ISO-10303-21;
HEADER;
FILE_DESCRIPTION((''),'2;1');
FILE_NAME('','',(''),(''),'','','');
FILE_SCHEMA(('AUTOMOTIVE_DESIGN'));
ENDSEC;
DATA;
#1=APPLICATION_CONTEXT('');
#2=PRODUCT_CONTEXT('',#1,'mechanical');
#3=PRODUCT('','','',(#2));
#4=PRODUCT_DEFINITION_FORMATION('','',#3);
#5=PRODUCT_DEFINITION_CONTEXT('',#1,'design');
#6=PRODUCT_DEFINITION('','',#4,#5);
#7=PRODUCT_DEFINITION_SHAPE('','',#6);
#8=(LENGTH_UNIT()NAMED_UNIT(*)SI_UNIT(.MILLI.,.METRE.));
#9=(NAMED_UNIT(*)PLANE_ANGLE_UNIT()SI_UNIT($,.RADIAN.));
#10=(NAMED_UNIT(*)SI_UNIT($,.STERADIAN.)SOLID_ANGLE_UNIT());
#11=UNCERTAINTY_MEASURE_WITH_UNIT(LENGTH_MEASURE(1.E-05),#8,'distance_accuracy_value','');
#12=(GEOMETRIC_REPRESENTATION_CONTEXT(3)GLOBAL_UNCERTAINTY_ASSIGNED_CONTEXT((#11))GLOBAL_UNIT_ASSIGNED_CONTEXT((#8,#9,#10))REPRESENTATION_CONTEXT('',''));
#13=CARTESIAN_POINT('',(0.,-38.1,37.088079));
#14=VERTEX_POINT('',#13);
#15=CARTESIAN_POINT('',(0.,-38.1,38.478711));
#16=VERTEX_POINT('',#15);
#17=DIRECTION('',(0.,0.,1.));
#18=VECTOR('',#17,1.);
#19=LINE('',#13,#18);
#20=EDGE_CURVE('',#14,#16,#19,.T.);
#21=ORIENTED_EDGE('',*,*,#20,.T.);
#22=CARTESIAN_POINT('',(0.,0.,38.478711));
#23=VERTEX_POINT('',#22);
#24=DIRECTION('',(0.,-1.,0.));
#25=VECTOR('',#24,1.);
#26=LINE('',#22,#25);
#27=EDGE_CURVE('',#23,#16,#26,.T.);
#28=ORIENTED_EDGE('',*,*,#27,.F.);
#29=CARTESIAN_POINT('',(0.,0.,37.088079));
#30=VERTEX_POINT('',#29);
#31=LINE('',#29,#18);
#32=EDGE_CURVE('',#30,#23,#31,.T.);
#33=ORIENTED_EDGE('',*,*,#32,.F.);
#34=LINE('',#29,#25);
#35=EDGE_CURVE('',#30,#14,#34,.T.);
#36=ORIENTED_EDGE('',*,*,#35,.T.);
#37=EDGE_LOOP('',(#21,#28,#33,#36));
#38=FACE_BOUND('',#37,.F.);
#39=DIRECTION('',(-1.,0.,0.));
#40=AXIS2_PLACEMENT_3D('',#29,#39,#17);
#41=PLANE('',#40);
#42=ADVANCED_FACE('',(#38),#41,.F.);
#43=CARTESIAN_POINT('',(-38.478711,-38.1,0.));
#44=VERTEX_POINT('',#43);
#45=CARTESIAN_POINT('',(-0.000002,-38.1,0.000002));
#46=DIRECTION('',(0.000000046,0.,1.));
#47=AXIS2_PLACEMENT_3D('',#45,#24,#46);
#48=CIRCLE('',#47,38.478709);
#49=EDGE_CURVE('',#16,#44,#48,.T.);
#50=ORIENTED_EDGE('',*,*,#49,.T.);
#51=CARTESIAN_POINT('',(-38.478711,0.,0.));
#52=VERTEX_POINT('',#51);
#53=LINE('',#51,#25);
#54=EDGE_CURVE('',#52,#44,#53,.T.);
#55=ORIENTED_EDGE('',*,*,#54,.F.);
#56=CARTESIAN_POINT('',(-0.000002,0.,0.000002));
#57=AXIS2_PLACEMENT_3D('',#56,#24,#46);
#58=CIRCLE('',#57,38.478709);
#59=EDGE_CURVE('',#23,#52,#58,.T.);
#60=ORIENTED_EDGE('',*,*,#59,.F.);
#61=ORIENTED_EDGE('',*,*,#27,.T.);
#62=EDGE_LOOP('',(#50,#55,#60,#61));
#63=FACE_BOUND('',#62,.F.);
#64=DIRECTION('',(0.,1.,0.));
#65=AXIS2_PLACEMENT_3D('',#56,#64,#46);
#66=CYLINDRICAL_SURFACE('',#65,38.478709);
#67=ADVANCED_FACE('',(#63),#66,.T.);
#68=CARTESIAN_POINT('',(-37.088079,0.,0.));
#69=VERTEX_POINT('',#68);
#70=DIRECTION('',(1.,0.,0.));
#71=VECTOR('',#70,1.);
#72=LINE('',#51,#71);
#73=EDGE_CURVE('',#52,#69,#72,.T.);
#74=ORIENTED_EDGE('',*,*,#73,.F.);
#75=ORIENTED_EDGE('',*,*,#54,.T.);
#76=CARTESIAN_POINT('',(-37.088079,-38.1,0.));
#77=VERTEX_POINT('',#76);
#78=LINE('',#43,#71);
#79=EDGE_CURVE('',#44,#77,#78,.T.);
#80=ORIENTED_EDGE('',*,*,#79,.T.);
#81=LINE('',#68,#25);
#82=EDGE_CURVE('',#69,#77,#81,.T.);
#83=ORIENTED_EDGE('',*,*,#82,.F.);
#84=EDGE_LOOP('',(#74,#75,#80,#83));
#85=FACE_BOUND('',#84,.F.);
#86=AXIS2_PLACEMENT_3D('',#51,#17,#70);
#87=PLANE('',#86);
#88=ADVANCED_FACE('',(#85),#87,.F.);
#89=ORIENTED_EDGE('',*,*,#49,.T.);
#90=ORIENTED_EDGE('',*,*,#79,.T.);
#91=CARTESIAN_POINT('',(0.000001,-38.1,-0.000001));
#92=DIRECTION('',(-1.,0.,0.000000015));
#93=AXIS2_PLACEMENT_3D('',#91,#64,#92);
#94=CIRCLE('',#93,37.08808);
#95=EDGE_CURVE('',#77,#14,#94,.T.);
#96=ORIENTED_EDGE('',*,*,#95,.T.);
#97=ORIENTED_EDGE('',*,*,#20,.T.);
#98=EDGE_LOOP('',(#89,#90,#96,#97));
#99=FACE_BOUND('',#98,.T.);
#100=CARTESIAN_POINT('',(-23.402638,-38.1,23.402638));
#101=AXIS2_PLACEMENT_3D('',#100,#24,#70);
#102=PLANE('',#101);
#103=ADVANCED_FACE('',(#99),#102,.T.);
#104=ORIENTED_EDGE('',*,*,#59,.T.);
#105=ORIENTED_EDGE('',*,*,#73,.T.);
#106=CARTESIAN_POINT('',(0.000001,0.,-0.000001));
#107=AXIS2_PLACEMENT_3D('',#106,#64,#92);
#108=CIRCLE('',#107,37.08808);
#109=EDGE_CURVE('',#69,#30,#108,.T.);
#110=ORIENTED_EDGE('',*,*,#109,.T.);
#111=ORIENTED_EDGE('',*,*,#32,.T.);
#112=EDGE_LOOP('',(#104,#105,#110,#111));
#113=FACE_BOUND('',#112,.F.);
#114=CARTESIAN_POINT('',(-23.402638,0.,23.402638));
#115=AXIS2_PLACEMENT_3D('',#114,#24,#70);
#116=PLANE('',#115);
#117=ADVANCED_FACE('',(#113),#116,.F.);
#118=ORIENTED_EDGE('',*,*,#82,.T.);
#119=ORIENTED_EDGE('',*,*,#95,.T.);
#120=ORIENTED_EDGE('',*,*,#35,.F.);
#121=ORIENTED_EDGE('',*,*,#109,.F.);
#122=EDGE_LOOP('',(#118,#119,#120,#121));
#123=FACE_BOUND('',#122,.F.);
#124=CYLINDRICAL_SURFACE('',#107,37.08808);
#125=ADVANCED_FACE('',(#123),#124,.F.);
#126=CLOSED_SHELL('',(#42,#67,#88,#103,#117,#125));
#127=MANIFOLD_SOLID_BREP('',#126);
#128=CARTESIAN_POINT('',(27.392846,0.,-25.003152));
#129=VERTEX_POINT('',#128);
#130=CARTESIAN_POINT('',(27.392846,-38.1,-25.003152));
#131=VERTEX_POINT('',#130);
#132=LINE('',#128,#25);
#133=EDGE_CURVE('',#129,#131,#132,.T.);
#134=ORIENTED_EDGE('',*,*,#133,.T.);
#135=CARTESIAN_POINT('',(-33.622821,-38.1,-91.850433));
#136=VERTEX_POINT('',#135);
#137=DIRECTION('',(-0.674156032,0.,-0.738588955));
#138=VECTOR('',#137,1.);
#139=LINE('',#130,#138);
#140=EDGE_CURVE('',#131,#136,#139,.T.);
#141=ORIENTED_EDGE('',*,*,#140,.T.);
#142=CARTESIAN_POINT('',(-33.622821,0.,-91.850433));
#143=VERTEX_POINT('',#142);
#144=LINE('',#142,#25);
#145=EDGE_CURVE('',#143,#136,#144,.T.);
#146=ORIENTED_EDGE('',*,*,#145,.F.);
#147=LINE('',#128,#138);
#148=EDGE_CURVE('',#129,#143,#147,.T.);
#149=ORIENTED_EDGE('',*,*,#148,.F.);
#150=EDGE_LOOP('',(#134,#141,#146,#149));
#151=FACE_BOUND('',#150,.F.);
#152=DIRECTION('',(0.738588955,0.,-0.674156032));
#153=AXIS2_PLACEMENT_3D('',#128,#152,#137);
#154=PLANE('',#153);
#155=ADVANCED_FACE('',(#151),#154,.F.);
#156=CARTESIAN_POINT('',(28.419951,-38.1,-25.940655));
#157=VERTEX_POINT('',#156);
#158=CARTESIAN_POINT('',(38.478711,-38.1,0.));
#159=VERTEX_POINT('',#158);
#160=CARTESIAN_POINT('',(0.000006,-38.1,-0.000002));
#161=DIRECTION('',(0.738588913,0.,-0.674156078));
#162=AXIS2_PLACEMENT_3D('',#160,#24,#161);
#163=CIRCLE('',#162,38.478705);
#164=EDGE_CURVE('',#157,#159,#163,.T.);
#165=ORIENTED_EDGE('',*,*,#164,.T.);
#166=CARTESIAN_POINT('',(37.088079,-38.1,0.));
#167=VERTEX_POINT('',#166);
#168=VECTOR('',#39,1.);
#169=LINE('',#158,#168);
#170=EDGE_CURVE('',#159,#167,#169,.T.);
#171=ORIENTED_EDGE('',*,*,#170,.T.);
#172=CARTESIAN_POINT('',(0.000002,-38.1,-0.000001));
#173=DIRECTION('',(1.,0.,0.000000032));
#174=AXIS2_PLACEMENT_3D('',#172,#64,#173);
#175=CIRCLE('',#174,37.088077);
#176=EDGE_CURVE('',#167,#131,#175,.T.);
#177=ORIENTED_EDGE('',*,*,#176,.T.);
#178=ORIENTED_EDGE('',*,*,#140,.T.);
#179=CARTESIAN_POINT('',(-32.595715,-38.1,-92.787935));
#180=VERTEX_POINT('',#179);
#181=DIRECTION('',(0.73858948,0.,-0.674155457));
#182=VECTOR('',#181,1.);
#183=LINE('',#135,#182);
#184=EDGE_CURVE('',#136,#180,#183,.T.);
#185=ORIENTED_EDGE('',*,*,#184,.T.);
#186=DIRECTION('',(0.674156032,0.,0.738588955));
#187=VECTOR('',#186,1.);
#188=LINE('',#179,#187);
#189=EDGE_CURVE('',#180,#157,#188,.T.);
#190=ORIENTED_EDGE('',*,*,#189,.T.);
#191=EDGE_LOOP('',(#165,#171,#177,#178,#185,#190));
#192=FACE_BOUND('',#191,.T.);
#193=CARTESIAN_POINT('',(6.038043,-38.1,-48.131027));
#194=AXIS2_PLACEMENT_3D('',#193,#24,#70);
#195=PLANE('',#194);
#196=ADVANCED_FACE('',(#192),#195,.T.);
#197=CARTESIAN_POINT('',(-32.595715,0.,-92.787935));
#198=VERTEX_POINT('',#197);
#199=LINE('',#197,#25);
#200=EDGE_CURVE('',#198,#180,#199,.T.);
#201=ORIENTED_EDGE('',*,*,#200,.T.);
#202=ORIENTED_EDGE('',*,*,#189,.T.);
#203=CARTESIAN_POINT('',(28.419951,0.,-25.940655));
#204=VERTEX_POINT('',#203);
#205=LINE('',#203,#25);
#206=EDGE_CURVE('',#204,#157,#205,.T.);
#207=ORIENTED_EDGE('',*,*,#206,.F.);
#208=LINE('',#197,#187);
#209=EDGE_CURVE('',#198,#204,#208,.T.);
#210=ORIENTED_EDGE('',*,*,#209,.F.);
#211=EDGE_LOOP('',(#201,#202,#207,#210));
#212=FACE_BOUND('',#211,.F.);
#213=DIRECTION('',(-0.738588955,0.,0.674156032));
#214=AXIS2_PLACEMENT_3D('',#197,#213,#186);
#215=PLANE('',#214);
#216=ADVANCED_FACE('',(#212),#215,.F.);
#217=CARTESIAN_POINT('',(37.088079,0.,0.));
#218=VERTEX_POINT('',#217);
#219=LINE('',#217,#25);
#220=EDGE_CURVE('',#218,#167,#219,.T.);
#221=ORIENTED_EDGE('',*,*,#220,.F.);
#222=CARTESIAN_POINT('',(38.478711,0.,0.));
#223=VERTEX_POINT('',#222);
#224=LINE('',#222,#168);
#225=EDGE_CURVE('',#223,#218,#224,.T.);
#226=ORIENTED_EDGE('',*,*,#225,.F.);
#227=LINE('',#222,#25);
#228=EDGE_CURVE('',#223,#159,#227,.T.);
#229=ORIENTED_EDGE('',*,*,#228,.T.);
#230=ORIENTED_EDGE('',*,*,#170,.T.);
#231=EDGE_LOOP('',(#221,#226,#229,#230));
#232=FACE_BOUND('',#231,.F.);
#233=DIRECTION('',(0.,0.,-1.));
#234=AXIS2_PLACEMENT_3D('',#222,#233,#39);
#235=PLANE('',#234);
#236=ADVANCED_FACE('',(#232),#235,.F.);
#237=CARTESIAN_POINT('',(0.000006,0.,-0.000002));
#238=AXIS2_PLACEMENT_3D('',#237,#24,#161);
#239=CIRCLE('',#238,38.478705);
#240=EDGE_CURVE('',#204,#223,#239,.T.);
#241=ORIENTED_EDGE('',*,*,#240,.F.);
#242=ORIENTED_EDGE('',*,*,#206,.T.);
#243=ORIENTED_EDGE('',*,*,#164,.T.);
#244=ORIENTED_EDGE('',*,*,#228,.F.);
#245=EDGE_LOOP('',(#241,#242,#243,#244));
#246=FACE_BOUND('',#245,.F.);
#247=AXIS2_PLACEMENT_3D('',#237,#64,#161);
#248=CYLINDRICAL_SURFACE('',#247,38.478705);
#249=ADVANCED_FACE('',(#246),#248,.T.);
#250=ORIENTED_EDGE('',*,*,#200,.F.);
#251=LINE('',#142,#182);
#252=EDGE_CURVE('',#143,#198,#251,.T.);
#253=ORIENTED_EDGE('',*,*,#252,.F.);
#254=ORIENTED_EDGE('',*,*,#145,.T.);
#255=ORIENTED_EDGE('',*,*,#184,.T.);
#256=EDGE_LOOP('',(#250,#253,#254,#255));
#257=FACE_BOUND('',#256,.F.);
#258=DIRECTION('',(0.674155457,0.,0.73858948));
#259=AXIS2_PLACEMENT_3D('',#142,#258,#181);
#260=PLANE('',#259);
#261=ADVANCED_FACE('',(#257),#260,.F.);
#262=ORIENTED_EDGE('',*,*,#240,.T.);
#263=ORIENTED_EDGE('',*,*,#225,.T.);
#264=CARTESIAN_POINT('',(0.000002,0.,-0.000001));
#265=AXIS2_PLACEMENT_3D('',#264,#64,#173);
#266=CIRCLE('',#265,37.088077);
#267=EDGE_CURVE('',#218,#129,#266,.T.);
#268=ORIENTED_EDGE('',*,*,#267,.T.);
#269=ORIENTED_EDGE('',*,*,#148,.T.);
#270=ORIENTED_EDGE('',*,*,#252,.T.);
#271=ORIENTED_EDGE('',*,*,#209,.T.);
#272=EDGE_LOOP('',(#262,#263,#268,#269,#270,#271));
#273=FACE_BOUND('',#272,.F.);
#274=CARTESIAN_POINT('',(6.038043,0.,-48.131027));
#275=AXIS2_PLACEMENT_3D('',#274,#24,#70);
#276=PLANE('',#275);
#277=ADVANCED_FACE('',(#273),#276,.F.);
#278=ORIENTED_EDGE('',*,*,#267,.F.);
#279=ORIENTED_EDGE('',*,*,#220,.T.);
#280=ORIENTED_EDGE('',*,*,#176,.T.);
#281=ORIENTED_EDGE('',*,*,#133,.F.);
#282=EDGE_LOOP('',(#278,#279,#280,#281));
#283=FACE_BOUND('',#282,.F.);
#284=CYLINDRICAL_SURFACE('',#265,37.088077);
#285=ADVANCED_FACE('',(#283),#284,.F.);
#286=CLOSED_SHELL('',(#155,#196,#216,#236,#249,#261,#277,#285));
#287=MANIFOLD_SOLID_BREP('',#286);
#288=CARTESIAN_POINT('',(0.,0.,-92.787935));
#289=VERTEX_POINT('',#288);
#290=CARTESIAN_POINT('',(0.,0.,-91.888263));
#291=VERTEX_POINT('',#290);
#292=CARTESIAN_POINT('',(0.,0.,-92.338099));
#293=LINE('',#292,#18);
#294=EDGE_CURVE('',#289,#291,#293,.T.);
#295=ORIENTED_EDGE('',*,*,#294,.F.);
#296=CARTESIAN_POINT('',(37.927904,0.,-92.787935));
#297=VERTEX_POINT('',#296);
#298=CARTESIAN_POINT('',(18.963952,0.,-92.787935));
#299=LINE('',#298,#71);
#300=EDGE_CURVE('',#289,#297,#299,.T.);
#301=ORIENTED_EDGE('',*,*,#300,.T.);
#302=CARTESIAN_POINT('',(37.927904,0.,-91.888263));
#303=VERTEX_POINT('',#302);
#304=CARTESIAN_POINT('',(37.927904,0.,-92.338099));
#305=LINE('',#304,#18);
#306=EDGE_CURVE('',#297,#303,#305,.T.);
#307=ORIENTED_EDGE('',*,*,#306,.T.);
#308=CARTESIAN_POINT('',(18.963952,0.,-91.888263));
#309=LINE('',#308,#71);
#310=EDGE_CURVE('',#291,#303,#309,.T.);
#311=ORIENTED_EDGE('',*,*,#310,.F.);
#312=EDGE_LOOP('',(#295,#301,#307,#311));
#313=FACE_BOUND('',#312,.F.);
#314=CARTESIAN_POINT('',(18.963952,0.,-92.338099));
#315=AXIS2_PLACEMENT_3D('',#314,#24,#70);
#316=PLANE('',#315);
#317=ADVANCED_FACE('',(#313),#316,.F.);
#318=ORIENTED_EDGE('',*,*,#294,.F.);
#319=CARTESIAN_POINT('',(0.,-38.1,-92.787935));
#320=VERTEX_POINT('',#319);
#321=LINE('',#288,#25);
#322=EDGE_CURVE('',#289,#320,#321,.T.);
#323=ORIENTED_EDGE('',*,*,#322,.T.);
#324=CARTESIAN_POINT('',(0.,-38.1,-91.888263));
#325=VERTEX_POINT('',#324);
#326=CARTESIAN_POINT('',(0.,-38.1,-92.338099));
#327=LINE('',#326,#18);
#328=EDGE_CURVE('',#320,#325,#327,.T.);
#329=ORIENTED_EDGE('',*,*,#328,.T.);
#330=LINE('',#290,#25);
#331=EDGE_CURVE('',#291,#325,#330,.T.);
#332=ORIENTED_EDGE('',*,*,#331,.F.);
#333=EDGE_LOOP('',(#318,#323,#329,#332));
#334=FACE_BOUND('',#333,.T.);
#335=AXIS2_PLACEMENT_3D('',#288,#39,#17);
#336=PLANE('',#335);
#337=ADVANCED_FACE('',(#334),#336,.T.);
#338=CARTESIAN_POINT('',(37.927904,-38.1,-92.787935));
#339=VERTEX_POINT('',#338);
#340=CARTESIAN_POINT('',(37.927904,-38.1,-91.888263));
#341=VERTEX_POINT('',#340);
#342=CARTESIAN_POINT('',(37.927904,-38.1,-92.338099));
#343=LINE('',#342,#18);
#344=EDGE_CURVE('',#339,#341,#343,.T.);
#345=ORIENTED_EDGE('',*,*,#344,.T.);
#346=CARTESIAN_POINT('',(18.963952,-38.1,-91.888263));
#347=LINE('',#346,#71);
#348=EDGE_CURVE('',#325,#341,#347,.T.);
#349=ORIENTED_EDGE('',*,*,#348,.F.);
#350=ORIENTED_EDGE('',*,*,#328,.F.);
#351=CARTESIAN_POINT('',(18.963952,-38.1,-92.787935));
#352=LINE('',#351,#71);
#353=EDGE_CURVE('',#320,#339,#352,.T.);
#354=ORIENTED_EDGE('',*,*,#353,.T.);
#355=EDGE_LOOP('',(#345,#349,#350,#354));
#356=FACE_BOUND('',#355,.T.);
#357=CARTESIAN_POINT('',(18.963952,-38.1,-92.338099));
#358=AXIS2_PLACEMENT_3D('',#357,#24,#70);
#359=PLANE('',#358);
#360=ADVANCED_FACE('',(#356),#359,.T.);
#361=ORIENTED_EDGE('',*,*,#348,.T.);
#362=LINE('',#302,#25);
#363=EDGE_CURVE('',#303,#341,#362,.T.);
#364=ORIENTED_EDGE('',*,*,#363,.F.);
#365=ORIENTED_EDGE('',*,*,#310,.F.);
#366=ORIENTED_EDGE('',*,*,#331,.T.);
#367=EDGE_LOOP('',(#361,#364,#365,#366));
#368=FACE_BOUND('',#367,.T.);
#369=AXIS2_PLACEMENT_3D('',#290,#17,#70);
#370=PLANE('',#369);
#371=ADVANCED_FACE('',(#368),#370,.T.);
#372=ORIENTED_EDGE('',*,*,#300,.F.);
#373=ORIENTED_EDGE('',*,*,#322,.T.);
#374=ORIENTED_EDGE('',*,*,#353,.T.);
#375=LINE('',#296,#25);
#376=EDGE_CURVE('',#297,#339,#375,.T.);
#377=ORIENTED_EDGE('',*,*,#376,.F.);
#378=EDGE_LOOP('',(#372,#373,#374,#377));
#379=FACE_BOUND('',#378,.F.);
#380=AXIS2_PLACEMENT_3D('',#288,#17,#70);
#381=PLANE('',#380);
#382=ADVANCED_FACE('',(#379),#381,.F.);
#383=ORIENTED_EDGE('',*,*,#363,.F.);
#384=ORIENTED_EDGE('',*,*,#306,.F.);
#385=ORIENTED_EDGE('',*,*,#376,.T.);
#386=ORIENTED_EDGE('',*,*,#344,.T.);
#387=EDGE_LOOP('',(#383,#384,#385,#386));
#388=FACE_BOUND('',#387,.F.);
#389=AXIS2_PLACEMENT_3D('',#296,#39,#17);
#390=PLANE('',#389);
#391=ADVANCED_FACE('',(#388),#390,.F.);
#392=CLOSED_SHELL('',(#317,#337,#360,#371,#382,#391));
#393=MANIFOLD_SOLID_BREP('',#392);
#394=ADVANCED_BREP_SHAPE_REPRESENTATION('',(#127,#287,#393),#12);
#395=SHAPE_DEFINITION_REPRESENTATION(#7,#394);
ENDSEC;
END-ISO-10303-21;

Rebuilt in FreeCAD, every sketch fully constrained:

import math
import FreeCAD as App
import Part
import Sketcher
from FreeCAD import Vector
Q = App.Units.Quantity

doc = App.newDocument("Part")
params = doc.addObject("Spreadsheet::Sheet", "Params")
for row, (alias, value) in enumerate([
    ("pad1_length", "1.5 in"),
], start=1):
    params.set(f"A{row}", alias)
    params.set(f"B{row}", "=" + value)
    params.setAlias(f"B{row}", alias)

body = doc.addObject("PartDesign::Body", "Body")
body.AllowCompound = True

sketch1 = body.newObject("Sketcher::SketchObject", "Sketch")
sketch1.AttachmentSupport = (doc.getObject("XZ_Plane"), [""])
sketch1.MapMode = "FlatFace"
sketch1.addGeometry([
    Part.LineSegment(Vector(-32.595715, -92.787935, 0), Vector(28.419951, -25.940655, 0)),
    Part.ArcOfCircle(Part.Circle(Vector(0.000006, -0.000002, 0), Vector(0, 0, 1), 38.478705), math.radians(-42.388649), math.radians(0.000004)),
    Part.LineSegment(Vector(38.478711, 0, 0), Vector(37.088079, 0, 0)),
    Part.ArcOfCircle(Part.Circle(Vector(0.000002, -0.000001, 0), Vector(0, 0, 1), 37.088077), math.radians(-42.388646), math.radians(0.000002)),
    Part.LineSegment(Vector(27.392846, -25.003152, 0), Vector(-33.622821, -91.850433, 0)),
    Part.LineSegment(Vector(-33.622821, -91.850433, 0), Vector(-32.595715, -92.787935, 0)),
    Part.LineSegment(Vector(0, -91.888263, 0), Vector(0, -92.787935, 0)),
    Part.LineSegment(Vector(0, -92.787935, 0), Vector(37.927904, -92.787935, 0)),
    Part.LineSegment(Vector(37.927904, -92.787935, 0), Vector(37.927904, -91.888263, 0)),
    Part.LineSegment(Vector(37.927904, -91.888263, 0), Vector(0, -91.888263, 0)),
    Part.LineSegment(Vector(0, 37.088079, 0), Vector(0, 38.478711, 0)),
    Part.ArcOfCircle(Part.Circle(Vector(-0.000002, 0.000002, 0), Vector(0, 0, 1), 38.478709), math.radians(89.999997), math.radians(180.000003)),
    Part.LineSegment(Vector(-38.478711, 0, 0), Vector(-37.088079, 0, 0)),
    Part.ArcOfCircle(Part.Circle(Vector(0.000001, -0.000001, 0), Vector(0, 0, 1), 37.08808), math.radians(90.000001), math.radians(179.999999)),
], False)
sketch1.addConstraint([
    Sketcher.Constraint("Coincident", 0, 2, 1, 1),
    Sketcher.Constraint("Coincident", 1, 2, 2, 1),
    Sketcher.Constraint("Coincident", 2, 2, 3, 2),
    Sketcher.Constraint("Coincident", 3, 1, 4, 1),
    Sketcher.Constraint("Coincident", 4, 2, 5, 1),
    Sketcher.Constraint("Coincident", 5, 2, 0, 1),
    Sketcher.Constraint("Coincident", 6, 2, 7, 1),
    Sketcher.Constraint("Coincident", 7, 2, 8, 1),
    Sketcher.Constraint("Coincident", 8, 2, 9, 1),
    Sketcher.Constraint("Coincident", 9, 2, 6, 1),
    Sketcher.Constraint("Coincident", 10, 2, 11, 1),
    Sketcher.Constraint("Coincident", 11, 2, 12, 1),
    Sketcher.Constraint("Coincident", 12, 2, 13, 2),
    Sketcher.Constraint("Coincident", 13, 1, 10, 1),
    Sketcher.Constraint("Horizontal", 2),
    Sketcher.Constraint("Vertical", 6),
    Sketcher.Constraint("Horizontal", 7),
    Sketcher.Constraint("Vertical", 8),
    Sketcher.Constraint("Horizontal", 9),
    Sketcher.Constraint("Vertical", 10),
    Sketcher.Constraint("Horizontal", 12),
    Sketcher.Constraint("Coincident", 1, 3, -1, 1),
    Sketcher.Constraint("Coincident", 3, 3, -1, 1),
    Sketcher.Constraint("Coincident", 11, 3, -1, 1),
    Sketcher.Constraint("Coincident", 13, 3, -1, 1),
    Sketcher.Constraint("PointOnObject", 1, 2, -1),
    Sketcher.Constraint("PointOnObject", 6, 2, -2),
    Sketcher.Constraint("PointOnObject", 10, 2, -2),
    Sketcher.Constraint("PointOnObject", 11, 2, -1),
    Sketcher.Constraint("Radius", 11, Q("38.478709 mm")),
    Sketcher.Constraint("Radius", 13, Q("37.08808 mm")),
    Sketcher.Constraint("Radius", 1, Q("38.478705 mm")),
    Sketcher.Constraint("Radius", 3, Q("37.088077 mm")),
    Sketcher.Constraint("DistanceY", 6, 2, 6, 1, Q("0.899671 mm")),
    Sketcher.Constraint("DistanceY", 6, 2, 4, 2, Q("0.937502 mm")),
    Sketcher.Constraint("Distance", 0, Q("90.506742 mm")),
    Sketcher.Constraint("Distance", 5, Q("1.390632 mm")),
    Sketcher.Constraint("DistanceX", 7, 1, 7, 2, Q("37.927904 mm")),
    Sketcher.Constraint("DistanceX", -1, 1, 0, 2, Q("28.419951 mm")),
    Sketcher.Constraint("DistanceY", 3, 1, -1, 1, Q("25.003152 mm")),
    Sketcher.Constraint("DistanceX", 4, 2, -1, 1, Q("33.622821 mm")),
    Sketcher.Constraint("DistanceY", 4, 2, 3, 1, Q("66.847281 mm")),
])
pad1 = body.newObject("PartDesign::Pad", "Pad")
pad1.Profile = sketch1
pad1.setExpression("Length", "Params.pad1_length")

doc.recompute()
